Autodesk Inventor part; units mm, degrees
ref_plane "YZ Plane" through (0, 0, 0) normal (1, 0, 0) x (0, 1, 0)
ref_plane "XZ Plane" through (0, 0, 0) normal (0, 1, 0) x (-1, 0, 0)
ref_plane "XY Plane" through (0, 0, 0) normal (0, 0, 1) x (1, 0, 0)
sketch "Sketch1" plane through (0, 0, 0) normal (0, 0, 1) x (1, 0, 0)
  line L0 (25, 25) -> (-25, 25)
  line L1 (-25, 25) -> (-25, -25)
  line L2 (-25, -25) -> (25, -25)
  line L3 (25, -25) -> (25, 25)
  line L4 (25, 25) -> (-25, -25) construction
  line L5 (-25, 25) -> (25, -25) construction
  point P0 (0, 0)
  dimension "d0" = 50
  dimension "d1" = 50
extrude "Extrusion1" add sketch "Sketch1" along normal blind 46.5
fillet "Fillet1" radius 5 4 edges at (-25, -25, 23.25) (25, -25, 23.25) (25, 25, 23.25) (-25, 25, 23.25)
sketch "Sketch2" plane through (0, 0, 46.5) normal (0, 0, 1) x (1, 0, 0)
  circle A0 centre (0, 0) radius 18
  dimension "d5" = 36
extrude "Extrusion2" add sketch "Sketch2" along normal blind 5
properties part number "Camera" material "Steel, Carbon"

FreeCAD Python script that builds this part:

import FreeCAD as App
import Part
import Sketcher
from FreeCAD import Vector


def edges_at(feature, points):
    """Names of the edges that pass closest to the given points."""
    edges = feature.Shape.Edges
    near = lambda p: min(range(len(edges)), key=lambda i: edges[i].distToShape(Part.Vertex(*p))[0])
    return sorted({f"Edge{near(p) + 1}" for p in points})

doc = App.newDocument("Part")
params = doc.addObject("Spreadsheet::Sheet", "Params")
for row, (alias, value) in enumerate([
    ("sketch1_width", "50 mm"),
    ("pad1_length", "46.5 mm"),
    ("fillet_radius", "5 mm"),
    ("sketch2_diameter", "36 mm"),
    ("pad2_length", "5 mm"),
], start=1):
    params.set(f"A{row}", alias)
    params.set(f"B{row}", "=" + value)
    params.setAlias(f"B{row}", alias)

body = doc.addObject("PartDesign::Body", "Body")

# Sketch on XY plane
sketch1 = doc.addObject("Sketcher::SketchObject", "Sketch")
body.addObject(sketch1)
sketch1.AttachmentSupport = (doc.XY_Plane, [""])
sketch1.MapMode = "FlatFace"
sketch1.addGeometry([
    Part.LineSegment(Vector(25, -25, 0), Vector(25, 25, 0)),
    Part.LineSegment(Vector(25, 25, 0), Vector(-25, 25, 0)),
    Part.LineSegment(Vector(-25, 25, 0), Vector(-25, -25, 0)),
    Part.LineSegment(Vector(-25, -25, 0), Vector(25, -25, 0)),
], False)
sketch1.addConstraint([
    Sketcher.Constraint("Coincident", 0, 2, 1, 1),
    Sketcher.Constraint("Coincident", 1, 2, 2, 1),
    Sketcher.Constraint("Coincident", 2, 2, 3, 1),
    Sketcher.Constraint("Coincident", 3, 2, 0, 1),
    Sketcher.Constraint("Vertical", 0),
    Sketcher.Constraint("Horizontal", 1),
    Sketcher.Constraint("Vertical", 2),
    Sketcher.Constraint("Horizontal", 3),
    Sketcher.Constraint("Symmetric", 0, 2, 2, 2, -1, 1),
    Sketcher.Constraint("Equal", 3, 0),
    Sketcher.Constraint("DistanceX", 1, 2, 1, 1, 50.0),
])
sketch1.setExpression("Constraints[10]", "Params.sketch1_width")
pad1 = doc.addObject("PartDesign::Pad", "Pad")
body.addObject(pad1)
pad1.Profile = sketch1
pad1.setExpression("Length", "Params.pad1_length")
doc.recompute()

fillet = doc.addObject("PartDesign::Fillet", "Fillet")
body.addObject(fillet)
fillet.Base = (pad1, edges_at(pad1, [
    (-25, -25, 23.25),
    (25, -25, 23.25),
    (25, 25, 23.25),
    (-25, 25, 23.25),
]))
fillet.setExpression("Radius", "Params.fillet_radius")

# Sketch on XY plane
sketch2 = doc.addObject("Sketcher::SketchObject", "Sketch001")
body.addObject(sketch2)
sketch2.AttachmentSupport = (doc.XY_Plane, [""])
sketch2.MapMode = "FlatFace"
sketch2.AttachmentOffset = App.Placement(Vector(0, 0, 46.5), App.Rotation())
sketch2.addGeometry(Part.Circle(Vector(0, 0, 0), Vector(0, 0, 1), 18), False)
sketch2.addConstraint([
    Sketcher.Constraint("Coincident", 0, 3, -1, 1),
    Sketcher.Constraint("Diameter", 0, 36.0),
])
sketch2.setExpression("Constraints[1]", "Params.sketch2_diameter")
pad2 = doc.addObject("PartDesign::Pad", "Pad001")
body.addObject(pad2)
pad2.Profile = sketch2
pad2.setExpression("Length", "Params.pad2_length")

doc.recompute()
